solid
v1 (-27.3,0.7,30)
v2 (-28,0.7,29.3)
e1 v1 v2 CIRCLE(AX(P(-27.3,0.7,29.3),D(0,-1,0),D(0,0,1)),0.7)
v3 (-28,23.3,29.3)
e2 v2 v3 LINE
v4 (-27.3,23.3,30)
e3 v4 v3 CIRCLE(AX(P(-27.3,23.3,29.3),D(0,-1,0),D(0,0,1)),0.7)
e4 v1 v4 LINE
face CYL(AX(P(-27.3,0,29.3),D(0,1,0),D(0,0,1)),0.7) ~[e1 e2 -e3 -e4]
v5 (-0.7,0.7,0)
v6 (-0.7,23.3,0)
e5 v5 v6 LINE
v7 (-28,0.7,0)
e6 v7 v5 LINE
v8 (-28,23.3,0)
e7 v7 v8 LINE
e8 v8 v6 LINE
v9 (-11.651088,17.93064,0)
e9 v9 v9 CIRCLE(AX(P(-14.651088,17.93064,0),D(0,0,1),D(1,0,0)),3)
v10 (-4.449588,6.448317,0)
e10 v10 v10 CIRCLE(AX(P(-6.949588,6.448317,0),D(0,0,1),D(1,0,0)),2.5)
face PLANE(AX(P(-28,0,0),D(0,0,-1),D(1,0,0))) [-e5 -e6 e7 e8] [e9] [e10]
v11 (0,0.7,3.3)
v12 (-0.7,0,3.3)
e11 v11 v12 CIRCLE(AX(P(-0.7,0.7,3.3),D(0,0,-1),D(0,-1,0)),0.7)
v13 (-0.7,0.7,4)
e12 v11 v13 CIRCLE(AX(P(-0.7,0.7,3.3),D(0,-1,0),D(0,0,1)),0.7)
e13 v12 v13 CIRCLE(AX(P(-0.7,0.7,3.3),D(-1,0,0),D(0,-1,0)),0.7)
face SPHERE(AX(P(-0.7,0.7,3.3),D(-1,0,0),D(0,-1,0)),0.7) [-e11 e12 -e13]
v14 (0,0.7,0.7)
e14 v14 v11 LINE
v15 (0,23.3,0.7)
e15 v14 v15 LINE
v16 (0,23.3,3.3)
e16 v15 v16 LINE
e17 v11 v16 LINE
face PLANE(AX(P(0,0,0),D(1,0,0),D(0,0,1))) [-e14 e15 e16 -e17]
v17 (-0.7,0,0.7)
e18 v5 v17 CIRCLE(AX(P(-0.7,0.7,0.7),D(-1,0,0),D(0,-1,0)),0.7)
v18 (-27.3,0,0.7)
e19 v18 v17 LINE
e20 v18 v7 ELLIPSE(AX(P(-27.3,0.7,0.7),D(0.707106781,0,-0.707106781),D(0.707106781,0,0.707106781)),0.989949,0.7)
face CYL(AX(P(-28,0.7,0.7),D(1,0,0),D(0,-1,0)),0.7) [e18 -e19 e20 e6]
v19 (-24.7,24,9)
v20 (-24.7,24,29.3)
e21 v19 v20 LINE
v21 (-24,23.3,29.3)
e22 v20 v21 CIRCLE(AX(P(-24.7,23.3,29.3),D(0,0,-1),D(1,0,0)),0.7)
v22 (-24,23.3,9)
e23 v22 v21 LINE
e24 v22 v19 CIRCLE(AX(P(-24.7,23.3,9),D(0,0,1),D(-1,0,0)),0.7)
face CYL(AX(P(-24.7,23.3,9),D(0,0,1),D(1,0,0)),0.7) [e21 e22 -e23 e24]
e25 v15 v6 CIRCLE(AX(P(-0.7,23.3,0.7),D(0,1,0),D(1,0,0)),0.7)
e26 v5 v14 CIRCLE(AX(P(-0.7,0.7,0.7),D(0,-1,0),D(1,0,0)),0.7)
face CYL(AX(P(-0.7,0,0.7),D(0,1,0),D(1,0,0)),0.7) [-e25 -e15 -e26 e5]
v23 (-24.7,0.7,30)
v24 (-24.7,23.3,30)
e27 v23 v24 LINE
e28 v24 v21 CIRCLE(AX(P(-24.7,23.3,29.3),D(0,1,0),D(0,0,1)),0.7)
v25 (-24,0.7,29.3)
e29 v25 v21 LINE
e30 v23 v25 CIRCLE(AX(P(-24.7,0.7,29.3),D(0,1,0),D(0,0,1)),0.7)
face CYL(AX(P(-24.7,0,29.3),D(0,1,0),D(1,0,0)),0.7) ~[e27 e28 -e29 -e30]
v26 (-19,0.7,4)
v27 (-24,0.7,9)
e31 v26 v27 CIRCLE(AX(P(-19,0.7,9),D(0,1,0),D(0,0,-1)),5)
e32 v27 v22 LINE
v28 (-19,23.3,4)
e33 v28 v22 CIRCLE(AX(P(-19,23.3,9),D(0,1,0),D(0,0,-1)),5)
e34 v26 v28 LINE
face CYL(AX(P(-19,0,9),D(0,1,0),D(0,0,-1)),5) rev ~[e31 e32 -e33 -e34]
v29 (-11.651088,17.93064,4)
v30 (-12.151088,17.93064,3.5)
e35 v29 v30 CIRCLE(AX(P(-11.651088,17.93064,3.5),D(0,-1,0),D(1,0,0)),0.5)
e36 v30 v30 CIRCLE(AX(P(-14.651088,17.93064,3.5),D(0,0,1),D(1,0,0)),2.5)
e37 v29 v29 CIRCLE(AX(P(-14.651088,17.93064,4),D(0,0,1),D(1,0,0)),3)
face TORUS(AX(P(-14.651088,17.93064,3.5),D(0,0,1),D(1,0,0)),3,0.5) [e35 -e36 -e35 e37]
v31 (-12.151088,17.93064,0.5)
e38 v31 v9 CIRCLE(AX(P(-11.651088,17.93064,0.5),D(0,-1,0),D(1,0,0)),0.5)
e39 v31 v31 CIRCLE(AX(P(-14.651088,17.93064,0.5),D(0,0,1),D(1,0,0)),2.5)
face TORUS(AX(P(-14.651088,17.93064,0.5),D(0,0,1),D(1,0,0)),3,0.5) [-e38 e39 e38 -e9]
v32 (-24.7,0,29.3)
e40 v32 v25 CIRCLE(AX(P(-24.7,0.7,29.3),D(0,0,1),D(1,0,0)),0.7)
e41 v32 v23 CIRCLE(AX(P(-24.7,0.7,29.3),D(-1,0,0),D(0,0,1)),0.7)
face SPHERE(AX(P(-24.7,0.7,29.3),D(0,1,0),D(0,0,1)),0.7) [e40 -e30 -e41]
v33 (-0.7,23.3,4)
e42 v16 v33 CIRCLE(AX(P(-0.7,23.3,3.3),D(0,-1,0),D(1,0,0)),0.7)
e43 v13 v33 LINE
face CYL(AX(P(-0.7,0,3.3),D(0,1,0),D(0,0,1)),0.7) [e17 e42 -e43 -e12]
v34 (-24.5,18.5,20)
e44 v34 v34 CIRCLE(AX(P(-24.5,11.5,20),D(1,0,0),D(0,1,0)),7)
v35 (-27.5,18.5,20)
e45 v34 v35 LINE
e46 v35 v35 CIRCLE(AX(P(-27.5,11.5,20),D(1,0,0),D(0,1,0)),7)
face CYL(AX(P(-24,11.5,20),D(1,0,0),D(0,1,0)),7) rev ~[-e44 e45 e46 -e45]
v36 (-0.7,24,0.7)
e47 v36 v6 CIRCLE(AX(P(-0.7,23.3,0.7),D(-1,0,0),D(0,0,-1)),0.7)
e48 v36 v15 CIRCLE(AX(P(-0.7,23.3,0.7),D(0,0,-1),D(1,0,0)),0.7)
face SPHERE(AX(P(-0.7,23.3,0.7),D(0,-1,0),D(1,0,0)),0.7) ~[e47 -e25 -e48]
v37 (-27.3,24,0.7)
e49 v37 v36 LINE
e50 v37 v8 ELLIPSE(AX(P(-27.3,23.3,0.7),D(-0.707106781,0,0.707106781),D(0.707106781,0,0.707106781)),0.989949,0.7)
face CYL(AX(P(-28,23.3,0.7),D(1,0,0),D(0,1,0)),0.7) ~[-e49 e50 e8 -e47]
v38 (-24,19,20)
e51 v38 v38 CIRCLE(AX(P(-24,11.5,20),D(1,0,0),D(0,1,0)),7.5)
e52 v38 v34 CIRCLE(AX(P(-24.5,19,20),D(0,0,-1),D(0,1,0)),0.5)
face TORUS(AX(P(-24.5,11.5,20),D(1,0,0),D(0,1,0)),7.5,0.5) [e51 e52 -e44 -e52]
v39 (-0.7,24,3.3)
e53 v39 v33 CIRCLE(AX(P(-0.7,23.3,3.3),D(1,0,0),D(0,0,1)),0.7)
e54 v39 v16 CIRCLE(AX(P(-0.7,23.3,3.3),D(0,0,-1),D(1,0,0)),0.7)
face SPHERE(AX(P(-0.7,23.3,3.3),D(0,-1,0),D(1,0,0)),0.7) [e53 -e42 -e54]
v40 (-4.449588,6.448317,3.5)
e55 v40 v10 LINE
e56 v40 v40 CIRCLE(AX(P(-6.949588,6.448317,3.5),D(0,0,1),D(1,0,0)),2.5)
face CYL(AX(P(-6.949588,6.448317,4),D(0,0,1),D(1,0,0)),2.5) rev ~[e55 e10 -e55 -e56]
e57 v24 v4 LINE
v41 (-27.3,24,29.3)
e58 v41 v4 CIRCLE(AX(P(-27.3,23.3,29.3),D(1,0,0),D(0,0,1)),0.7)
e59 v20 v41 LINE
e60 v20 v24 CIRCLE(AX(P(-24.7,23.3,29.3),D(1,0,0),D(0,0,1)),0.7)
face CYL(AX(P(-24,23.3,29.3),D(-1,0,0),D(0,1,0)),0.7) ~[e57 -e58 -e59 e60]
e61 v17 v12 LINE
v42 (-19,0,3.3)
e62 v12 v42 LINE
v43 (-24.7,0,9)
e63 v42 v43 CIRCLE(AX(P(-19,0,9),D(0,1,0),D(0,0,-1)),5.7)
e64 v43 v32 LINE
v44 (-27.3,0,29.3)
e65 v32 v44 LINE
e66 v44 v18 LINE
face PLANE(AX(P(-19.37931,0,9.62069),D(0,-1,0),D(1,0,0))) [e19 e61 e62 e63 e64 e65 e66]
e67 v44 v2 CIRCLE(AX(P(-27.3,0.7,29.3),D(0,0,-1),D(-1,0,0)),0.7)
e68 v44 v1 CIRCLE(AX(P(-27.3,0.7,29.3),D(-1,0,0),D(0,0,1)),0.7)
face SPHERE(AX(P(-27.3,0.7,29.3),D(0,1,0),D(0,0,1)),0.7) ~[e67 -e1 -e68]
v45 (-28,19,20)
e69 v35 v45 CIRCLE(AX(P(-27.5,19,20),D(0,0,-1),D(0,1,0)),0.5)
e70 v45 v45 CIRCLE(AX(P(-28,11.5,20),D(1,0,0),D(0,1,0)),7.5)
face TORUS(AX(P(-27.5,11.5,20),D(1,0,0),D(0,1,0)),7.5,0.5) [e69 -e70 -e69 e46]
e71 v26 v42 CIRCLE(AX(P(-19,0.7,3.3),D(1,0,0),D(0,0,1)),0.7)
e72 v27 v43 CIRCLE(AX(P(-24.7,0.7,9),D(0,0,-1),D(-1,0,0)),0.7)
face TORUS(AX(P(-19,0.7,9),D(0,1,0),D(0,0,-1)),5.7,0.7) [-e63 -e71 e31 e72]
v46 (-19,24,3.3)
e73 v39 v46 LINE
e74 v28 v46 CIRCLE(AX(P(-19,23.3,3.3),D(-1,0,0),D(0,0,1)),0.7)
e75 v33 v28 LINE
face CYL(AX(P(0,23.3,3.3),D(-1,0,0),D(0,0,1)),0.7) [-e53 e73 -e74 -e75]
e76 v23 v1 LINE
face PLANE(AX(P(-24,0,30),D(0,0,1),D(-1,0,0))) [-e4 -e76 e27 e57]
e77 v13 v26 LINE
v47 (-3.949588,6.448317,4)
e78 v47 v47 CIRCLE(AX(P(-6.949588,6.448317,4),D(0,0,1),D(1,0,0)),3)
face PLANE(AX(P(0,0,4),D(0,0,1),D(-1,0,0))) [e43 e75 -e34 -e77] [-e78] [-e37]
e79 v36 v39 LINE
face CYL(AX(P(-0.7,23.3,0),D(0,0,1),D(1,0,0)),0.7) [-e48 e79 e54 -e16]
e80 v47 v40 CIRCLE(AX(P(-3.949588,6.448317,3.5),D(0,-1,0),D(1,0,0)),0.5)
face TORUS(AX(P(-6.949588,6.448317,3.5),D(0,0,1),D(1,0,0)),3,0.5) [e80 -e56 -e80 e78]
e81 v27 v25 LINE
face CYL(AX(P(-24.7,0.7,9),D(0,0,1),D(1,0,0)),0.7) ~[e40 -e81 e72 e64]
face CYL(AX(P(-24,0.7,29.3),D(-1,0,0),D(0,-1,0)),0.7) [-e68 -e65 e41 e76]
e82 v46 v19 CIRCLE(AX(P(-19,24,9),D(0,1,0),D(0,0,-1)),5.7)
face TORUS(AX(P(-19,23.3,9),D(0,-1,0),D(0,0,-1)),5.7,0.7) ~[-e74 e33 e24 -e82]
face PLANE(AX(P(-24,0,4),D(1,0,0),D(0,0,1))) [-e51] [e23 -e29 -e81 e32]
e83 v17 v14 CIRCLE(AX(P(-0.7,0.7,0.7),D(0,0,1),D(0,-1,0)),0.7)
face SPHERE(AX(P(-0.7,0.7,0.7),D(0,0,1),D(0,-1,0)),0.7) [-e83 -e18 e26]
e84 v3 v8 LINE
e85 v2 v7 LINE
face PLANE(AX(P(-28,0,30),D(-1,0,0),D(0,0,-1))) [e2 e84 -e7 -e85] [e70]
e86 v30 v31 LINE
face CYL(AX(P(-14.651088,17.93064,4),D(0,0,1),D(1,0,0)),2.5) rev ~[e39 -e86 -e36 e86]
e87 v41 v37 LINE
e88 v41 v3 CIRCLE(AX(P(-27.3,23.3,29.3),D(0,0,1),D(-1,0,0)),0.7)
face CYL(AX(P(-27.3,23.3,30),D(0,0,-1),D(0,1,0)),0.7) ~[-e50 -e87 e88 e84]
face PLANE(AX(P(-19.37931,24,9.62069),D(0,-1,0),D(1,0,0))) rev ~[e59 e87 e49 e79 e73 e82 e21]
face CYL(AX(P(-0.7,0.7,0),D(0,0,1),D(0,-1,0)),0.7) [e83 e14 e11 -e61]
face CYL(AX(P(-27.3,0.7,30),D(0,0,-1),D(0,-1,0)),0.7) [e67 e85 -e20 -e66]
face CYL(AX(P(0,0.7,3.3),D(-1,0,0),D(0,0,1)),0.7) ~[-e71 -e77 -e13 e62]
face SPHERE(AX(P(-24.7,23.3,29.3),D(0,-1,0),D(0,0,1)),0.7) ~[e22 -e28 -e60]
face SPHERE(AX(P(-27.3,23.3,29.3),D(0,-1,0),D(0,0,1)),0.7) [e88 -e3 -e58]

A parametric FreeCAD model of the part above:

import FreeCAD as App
import Part
import Sketcher
Q = App.Units.Quantity


def edges_at(feature, points):
    """Names of the edges that pass closest to the given points."""
    edges = feature.Shape.Edges
    near = lambda p: min(range(len(edges)), key=lambda i: edges[i].distToShape(Part.Vertex(*p))[0])
    return sorted({f"Edge{near(p) + 1}" for p in points})

doc = App.newDocument("Part")
body = doc.addObject("PartDesign::Body", "Body")

# Sketch on XZ plane
sketch1 = body.newObject("Sketcher::SketchObject", "Sketch")
sketch1.AttachmentSupport = (doc.getObject("XZ_Plane"), [""])
sketch1.MapMode = "FlatFace"
sketch1.addGeometry([
    Part.LineSegment(App.Vector(0, 4, 0), App.Vector(-24, 4, 0)),  # 0
    Part.LineSegment(App.Vector(-24, 4, 0), App.Vector(-24, 30, 0)),  # 1
    Part.LineSegment(App.Vector(-24, 30, 0), App.Vector(-28, 30, 0)),  # 2
    Part.LineSegment(App.Vector(-28, 30, 0), App.Vector(-28, 0, 0)),  # 3
    Part.LineSegment(App.Vector(-28, 0, 0), App.Vector(0, 0, 0)),  # 4
    Part.LineSegment(App.Vector(0, 0, 0), App.Vector(0, 4, 0)),  # 5
], False)
sketch1.addConstraint([
    Sketcher.Constraint("Coincident", 0, 2, 1, 1),
    Sketcher.Constraint("Coincident", 1, 2, 2, 1),
    Sketcher.Constraint("Coincident", 2, 2, 3, 1),
    Sketcher.Constraint("Coincident", 3, 2, 4, 1),
    Sketcher.Constraint("Coincident", 4, 2, 5, 1),
    Sketcher.Constraint("Coincident", 5, 2, 0, 1),
    Sketcher.Constraint("Horizontal", 0),
    Sketcher.Constraint("Vertical", 1),
    Sketcher.Constraint("Horizontal", 2),
    Sketcher.Constraint("Vertical", 3),
    Sketcher.Constraint("Horizontal", 4),
    Sketcher.Constraint("Vertical", 5),
    Sketcher.Constraint("Coincident", 4, 2, -1, 1),
    Sketcher.Constraint("Equal", 2, 5),
    Sketcher.Constraint("DistanceX", 0, 2, 0, 1, Q("24 mm")),
    Sketcher.Constraint("DistanceX", 2, 2, 2, 1, Q("4 mm")),
    Sketcher.Constraint("DistanceY", 1, 1, 1, 2, Q("26 mm")),
])
pad1 = body.newObject("PartDesign::Pad", "Pad")
pad1.Profile = sketch1
pad1.Length = 24
pad1.Reversed = True

# Sketch on XY plane
sketch2 = body.newObject("Sketcher::SketchObject", "Sketch001")
sketch2.AttachmentSupport = (doc.getObject("XY_Plane"), [""])
sketch2.MapMode = "FlatFace"
sketch2.AttachmentOffset = App.Placement(App.Vector(0, 0, 4), App.Rotation())
sketch2.addGeometry([
    Part.Circle(App.Vector(-14.7, 17.9, 0), App.Vector(0, 0, 1), 2.5),
    Part.Circle(App.Vector(-6.9, 6.4, 0), App.Vector(0, 0, 1), 2.5),
], False)
sketch2.addConstraint([
    Sketcher.Constraint("Equal", 0, 1),
    Sketcher.Constraint("Diameter", 0, Q("5 mm")),
    Sketcher.Constraint("DistanceX", 0, 3, 1, 3, Q("7.7015 mm")),
    Sketcher.Constraint("DistanceX", 0, 3, -1, 1, Q("14.651088 mm")),
    Sketcher.Constraint("DistanceY", -1, 1, 0, 3, Q("17.93064 mm")),
    Sketcher.Constraint("DistanceY", -1, 1, 1, 3, Q("6.448317 mm")),
])
pocket1 = body.newObject("PartDesign::Pocket", "Pocket")
pocket1.Profile = sketch2
pocket1.Length = 25

# Sketch on YZ plane
sketch3 = body.newObject("Sketcher::SketchObject", "Sketch002")
sketch3.AttachmentSupport = (doc.getObject("YZ_Plane"), [""])
sketch3.MapMode = "FlatFace"
sketch3.AttachmentOffset = App.Placement(App.Vector(0, 0, -24), App.Rotation())
sketch3.addGeometry(Part.Circle(App.Vector(12, 20, 0), App.Vector(0, 0, 1), 7), False)
sketch3.addConstraint([
    Sketcher.Constraint("Diameter", 0, Q("14 mm")),
    Sketcher.Constraint("DistanceY", -1, 1, 0, 3, Q("20 mm")),
    Sketcher.Constraint("DistanceX", -1, 1, 0, 3, Q("11.5 mm")),
])
pocket2 = body.newObject("PartDesign::Pocket", "Pocket001")
pocket2.Profile = sketch3
pocket2.Length = 25
doc.recompute()

fillet = body.newObject("PartDesign::Fillet", "Fillet")
fillet.Base = (pocket2, edges_at(pocket2, [(-24, 12, 4)]))
fillet.Radius = 5
doc.recompute()

fillet2 = body.newObject("PartDesign::Fillet", "Fillet001")
fillet2.Base = (fillet, edges_at(fillet, [
    (-24, 12, 30),
    (-28, 12, 30),
    (-26, 0, 30),
    (-26, 24, 30),
    (-9.5, 0, 4),
    (-22.536, 0, 5.464),
    (0, 0, 2),
    (-24, 0, 19.5),
    (-14, 0, 0),
    (-28, 0, 15),
    (0, 12, 0),
    (0, 12, 4),
    (0, 24, 2),
    (-9.5, 24, 4),
    (-22.536, 24, 5.464),
    (-24, 24, 19.5),
    (-14, 24, 0),
    (-28, 24, 15),
]))
fillet2.Radius = 0.7
doc.recompute()

fillet3 = body.newObject("PartDesign::Fillet", "Fillet002")
fillet3.Base = (fillet2, edges_at(fillet2, [
    (-17.151, 17.931, 0),
    (-9.45, 6.448, 4),
    (-17.151, 17.931, 4),
    (-24, 4.5, 20),
    (-26, 18.5, 20),
    (-28, 4.5, 20),
]))
fillet3.Radius = 0.5

doc.recompute()
